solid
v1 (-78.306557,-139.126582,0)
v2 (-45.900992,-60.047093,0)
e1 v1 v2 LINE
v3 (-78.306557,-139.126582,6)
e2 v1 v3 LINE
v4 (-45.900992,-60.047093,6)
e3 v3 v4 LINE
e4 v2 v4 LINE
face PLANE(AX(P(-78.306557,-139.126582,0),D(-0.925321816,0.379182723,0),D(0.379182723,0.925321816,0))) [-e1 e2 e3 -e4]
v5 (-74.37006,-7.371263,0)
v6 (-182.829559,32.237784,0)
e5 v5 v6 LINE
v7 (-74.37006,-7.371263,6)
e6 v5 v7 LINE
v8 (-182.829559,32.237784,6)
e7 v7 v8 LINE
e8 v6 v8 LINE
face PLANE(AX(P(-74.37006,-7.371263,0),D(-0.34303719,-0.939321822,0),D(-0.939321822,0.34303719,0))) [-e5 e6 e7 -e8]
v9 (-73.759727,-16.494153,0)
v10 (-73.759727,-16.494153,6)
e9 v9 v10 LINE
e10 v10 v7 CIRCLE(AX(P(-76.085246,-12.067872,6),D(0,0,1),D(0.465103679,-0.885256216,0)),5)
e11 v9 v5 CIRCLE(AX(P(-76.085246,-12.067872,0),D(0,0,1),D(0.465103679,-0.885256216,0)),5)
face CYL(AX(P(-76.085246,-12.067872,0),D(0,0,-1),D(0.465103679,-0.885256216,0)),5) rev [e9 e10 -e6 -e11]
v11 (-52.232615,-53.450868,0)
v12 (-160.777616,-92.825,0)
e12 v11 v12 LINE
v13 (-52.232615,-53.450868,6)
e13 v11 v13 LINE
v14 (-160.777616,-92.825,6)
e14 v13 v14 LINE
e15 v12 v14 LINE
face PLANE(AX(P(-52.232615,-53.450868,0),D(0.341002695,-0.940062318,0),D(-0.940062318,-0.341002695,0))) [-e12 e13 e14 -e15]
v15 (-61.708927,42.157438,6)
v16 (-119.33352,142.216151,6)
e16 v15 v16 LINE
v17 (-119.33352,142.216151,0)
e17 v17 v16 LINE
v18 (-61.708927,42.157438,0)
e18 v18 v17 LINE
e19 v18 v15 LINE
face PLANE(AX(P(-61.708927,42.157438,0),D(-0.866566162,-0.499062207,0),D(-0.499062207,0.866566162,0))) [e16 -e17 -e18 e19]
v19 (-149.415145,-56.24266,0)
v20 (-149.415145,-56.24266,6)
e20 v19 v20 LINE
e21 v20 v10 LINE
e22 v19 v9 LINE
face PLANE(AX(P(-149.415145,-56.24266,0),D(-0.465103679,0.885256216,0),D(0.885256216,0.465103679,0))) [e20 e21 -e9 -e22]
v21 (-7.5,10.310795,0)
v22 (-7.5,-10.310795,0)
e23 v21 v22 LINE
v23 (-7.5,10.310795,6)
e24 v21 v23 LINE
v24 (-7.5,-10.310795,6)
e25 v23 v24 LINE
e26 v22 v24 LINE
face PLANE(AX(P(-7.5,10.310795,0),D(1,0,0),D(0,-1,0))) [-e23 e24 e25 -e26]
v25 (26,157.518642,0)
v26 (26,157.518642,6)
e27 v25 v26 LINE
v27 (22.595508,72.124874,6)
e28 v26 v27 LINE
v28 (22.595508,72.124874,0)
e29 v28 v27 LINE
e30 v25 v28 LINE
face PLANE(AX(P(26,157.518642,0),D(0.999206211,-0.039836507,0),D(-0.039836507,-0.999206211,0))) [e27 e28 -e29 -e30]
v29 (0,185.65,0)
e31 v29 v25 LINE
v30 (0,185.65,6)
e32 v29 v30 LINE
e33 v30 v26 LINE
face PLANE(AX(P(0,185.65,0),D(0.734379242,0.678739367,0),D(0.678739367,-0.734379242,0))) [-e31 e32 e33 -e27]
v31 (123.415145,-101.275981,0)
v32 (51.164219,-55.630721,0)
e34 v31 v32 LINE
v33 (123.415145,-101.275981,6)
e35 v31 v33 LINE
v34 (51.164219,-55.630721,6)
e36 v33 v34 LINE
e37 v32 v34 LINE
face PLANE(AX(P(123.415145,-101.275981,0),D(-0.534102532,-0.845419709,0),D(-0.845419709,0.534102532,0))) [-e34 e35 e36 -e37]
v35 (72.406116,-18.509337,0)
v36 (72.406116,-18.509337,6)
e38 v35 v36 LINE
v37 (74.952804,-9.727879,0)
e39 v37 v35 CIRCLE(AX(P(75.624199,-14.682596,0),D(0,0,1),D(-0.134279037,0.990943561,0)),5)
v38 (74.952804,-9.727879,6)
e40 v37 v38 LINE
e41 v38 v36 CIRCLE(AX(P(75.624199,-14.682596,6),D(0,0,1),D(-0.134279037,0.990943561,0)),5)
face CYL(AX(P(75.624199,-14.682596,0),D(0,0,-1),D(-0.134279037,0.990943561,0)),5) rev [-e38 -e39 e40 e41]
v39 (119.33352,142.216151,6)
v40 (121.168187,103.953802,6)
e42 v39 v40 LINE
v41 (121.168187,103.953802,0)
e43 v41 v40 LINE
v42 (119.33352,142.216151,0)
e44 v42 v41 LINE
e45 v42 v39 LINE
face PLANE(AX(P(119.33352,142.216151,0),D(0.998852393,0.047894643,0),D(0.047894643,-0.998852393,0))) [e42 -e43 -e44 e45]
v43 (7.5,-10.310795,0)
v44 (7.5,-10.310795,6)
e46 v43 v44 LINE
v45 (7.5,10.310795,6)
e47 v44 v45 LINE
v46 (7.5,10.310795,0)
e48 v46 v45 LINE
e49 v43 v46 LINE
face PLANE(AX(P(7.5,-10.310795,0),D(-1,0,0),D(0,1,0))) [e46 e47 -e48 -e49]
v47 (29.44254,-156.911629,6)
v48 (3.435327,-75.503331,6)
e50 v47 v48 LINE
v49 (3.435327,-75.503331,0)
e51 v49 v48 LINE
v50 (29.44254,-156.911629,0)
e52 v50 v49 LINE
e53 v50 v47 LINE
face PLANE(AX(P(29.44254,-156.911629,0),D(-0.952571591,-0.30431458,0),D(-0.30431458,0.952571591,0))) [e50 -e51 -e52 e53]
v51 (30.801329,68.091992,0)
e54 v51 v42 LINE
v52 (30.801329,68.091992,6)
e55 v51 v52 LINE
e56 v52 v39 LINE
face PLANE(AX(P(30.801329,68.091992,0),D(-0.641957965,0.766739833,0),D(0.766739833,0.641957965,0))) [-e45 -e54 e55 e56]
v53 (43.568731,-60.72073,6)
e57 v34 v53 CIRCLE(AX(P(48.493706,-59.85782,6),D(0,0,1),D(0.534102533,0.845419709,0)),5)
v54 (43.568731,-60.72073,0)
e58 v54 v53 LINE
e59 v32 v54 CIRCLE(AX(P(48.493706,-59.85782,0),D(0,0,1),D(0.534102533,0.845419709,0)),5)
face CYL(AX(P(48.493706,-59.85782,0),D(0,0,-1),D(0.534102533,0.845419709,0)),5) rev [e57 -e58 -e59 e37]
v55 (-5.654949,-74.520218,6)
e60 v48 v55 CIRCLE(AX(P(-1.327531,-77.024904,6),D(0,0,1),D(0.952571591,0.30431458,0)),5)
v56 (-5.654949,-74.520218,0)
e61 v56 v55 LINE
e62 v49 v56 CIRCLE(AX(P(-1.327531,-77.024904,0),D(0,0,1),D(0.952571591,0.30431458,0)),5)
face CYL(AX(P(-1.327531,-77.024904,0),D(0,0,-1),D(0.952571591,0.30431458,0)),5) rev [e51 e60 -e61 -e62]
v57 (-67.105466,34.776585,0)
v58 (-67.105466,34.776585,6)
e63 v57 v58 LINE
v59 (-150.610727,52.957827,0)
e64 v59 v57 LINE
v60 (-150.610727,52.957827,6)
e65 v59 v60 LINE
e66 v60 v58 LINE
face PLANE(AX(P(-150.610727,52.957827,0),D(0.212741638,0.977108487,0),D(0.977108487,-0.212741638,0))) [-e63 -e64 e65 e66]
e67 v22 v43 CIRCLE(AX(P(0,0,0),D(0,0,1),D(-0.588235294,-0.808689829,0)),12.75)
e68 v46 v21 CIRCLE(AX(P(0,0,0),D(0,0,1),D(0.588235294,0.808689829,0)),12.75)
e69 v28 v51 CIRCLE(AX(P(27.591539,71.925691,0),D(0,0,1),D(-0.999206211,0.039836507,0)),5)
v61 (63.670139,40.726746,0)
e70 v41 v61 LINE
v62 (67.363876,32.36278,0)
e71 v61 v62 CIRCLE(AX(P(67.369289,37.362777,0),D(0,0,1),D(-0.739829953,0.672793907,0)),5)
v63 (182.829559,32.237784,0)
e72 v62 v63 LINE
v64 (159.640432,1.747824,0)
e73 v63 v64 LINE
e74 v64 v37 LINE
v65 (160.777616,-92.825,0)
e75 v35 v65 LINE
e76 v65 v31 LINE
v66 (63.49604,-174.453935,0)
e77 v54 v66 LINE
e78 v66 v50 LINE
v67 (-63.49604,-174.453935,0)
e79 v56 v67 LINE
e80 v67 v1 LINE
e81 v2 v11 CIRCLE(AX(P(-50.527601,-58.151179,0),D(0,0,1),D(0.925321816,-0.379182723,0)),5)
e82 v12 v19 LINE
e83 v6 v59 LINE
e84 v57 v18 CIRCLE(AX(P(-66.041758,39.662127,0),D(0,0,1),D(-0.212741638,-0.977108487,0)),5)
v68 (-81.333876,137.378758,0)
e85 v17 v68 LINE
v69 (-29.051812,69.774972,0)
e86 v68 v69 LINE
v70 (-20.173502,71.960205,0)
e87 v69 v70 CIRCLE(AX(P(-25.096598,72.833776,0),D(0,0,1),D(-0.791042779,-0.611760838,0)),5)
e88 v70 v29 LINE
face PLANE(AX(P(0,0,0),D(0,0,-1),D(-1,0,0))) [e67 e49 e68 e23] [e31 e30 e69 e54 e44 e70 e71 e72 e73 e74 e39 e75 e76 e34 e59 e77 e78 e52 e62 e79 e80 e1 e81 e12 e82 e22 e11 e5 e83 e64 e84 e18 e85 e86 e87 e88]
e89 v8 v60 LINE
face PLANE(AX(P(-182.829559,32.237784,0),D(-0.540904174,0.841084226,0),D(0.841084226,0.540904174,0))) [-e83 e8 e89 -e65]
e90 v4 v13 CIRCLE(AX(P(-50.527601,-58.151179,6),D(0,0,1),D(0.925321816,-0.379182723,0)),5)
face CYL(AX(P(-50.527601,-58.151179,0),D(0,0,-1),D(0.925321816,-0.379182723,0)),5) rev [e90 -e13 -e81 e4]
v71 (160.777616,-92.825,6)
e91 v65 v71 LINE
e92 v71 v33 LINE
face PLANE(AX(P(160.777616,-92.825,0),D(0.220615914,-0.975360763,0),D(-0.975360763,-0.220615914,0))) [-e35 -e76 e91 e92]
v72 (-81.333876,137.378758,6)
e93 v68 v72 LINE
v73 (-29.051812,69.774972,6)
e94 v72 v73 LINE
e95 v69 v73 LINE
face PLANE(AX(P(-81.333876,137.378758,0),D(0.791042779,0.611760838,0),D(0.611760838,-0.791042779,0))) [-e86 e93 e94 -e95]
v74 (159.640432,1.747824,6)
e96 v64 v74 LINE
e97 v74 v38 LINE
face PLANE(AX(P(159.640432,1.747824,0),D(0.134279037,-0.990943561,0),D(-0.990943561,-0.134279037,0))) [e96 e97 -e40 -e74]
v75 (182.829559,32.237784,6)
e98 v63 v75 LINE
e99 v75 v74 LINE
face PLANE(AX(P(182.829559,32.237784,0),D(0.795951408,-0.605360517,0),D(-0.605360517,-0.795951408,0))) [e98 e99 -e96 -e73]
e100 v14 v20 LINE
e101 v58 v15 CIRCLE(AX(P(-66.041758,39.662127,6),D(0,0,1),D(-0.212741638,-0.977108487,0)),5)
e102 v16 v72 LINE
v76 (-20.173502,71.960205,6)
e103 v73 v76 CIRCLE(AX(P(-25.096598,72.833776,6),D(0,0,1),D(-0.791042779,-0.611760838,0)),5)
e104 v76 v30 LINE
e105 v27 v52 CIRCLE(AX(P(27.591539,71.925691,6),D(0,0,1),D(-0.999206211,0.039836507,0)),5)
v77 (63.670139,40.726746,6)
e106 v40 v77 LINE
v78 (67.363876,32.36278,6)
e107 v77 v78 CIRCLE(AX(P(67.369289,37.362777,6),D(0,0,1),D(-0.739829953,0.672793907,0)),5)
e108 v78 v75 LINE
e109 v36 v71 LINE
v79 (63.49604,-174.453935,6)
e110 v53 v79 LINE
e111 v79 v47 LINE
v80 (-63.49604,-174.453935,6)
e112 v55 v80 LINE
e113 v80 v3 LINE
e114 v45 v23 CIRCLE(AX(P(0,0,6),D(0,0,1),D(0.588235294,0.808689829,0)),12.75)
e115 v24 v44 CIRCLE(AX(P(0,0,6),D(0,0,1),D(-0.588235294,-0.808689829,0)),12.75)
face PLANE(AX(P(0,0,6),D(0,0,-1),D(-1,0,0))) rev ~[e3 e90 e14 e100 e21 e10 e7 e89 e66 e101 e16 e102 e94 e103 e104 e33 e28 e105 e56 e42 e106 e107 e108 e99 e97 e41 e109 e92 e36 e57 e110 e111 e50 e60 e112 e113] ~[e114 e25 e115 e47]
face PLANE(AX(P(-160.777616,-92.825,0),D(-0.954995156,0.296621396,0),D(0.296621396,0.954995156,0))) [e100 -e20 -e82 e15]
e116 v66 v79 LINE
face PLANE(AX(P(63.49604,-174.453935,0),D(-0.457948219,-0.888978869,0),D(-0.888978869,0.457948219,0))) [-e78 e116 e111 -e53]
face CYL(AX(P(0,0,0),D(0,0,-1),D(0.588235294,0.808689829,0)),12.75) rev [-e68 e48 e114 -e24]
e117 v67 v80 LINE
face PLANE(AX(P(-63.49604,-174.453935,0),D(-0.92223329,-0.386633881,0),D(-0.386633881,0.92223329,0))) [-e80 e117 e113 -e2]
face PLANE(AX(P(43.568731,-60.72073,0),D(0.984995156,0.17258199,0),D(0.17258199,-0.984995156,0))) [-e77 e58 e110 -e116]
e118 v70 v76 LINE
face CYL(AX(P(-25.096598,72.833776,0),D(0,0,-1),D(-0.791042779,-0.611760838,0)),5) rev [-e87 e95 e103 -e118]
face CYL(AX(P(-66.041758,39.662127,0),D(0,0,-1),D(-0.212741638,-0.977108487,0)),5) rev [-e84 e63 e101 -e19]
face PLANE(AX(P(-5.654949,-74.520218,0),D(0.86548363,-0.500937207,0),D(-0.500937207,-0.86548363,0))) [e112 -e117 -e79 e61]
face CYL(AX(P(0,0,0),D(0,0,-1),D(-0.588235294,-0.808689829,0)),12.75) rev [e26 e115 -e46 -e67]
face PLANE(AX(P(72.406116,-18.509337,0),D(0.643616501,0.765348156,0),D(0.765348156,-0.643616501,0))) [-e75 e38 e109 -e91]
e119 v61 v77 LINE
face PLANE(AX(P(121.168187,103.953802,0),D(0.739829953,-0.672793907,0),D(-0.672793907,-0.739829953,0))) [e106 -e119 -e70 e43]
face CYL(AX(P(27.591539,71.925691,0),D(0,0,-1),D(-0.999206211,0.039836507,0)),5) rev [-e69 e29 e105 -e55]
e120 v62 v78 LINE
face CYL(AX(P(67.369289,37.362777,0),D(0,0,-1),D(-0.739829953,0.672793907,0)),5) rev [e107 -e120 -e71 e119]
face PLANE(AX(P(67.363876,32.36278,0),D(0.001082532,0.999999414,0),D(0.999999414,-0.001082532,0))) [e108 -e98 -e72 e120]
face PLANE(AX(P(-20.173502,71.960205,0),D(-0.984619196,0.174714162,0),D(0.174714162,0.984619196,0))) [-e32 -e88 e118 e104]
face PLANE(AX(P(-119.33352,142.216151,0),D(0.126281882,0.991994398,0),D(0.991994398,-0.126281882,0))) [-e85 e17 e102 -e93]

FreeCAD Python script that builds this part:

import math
import FreeCAD as App
import Part
import Sketcher

V = App.Vector

doc = App.newDocument("Part")
body = doc.addObject("PartDesign::Body", "Body")

sketch1 = body.newObject("Sketcher::SketchObject", "Sketch")
sketch1.AttachmentSupport = (doc.getObject("XY_Plane"), [""])
sketch1.MapMode = "FlatFace"
sketch1.addGeometry([
    Part.LineSegment(V(0, 185.65, 0), V(-20.173502, 71.960205, 0)),
    Part.ArcOfCircle(Part.Circle(V(-25.096598, 72.833776, 0), V(0, 0, 1), 5), math.radians(-142.283068), math.radians(-10.062025)),
    Part.LineSegment(V(-29.051812, 69.774972, 0), V(-81.333876, 137.378758, 0)),
    Part.LineSegment(V(-81.333876, 137.378758, 0), V(-119.33352, 142.216151, 0)),
    Part.LineSegment(V(-119.33352, 142.216151, 0), V(-61.708927, 42.157438, 0)),
    Part.ArcOfCircle(Part.Circle(V(-66.041758, 39.662127, 0), V(0, 0, 1), 5), math.radians(-102.283068), math.radians(29.937975)),
    Part.LineSegment(V(-67.105466, 34.776585, 0), V(-150.610727, 52.957827, 0)),
    Part.LineSegment(V(-150.610727, 52.957827, 0), V(-182.829559, 32.237784, 0)),
    Part.LineSegment(V(-182.829559, 32.237784, 0), V(-74.37006, -7.371263, 0)),
    Part.ArcOfCircle(Part.Circle(V(-76.085246, -12.067872, 0), V(0, 0, 1), 5), math.radians(-62.283068), math.radians(69.937975)),
    Part.LineSegment(V(-73.759727, -16.494153, 0), V(-149.415145, -56.24266, 0)),
    Part.LineSegment(V(-149.415145, -56.24266, 0), V(-160.777616, -92.825, 0)),
    Part.LineSegment(V(-160.777616, -92.825, 0), V(-52.232615, -53.450868, 0)),
    Part.ArcOfCircle(Part.Circle(V(-50.527601, -58.151179, 0), V(0, 0, 1), 5), math.radians(-22.283068), math.radians(109.937975)),
    Part.LineSegment(V(-45.900992, -60.047093, 0), V(-78.306557, -139.126582, 0)),
    Part.LineSegment(V(-78.306557, -139.126582, 0), V(-63.49604, -174.453935, 0)),
    Part.LineSegment(V(-63.49604, -174.453935, 0), V(-5.654949, -74.520218, 0)),
    Part.ArcOfCircle(Part.Circle(V(-1.327531, -77.024904, 0), V(0, 0, 1), 5), math.radians(17.716932), math.radians(149.937975)),
    Part.LineSegment(V(3.435327, -75.503331, 0), V(29.44254, -156.911629, 0)),
    Part.LineSegment(V(29.44254, -156.911629, 0), V(63.49604, -174.453935, 0)),
    Part.LineSegment(V(63.49604, -174.453935, 0), V(43.568731, -60.72073, 0)),
    Part.ArcOfCircle(Part.Circle(V(48.493706, -59.85782, 0), V(0, 0, 1), 5), math.radians(57.716932), math.radians(189.937975)),
    Part.LineSegment(V(51.164219, -55.630721, 0), V(123.415145, -101.275981, 0)),
    Part.LineSegment(V(123.415145, -101.275981, 0), V(160.777616, -92.825, 0)),
    Part.LineSegment(V(160.777616, -92.825, 0), V(72.406116, -18.509337, 0)),
    Part.ArcOfCircle(Part.Circle(V(75.624199, -14.682596, 0), V(0, 0, 1), 5), math.radians(97.716932), math.radians(229.937975)),
    Part.LineSegment(V(74.952804, -9.727879, 0), V(159.640432, 1.747824, 0)),
    Part.LineSegment(V(159.640432, 1.747824, 0), V(182.829559, 32.237784, 0)),
    Part.LineSegment(V(182.829559, 32.237784, 0), V(67.363876, 32.36278, 0)),
    Part.ArcOfCircle(Part.Circle(V(67.369289, 37.362777, 0), V(0, 0, 1), 5), math.radians(137.716932), math.radians(269.937975)),
    Part.LineSegment(V(63.670139, 40.726746, 0), V(121.168187, 103.953802, 0)),
    Part.LineSegment(V(121.168187, 103.953802, 0), V(119.33352, 142.216151, 0)),
    Part.LineSegment(V(119.33352, 142.216151, 0), V(30.801329, 68.091992, 0)),
    Part.ArcOfCircle(Part.Circle(V(27.591539, 71.925691, 0), V(0, 0, 1), 5), math.radians(177.716932), math.radians(309.937975)),
    Part.LineSegment(V(22.595508, 72.124874, 0), V(26, 157.518642, 0)),
    Part.LineSegment(V(26, 157.518642, 0), V(0, 185.65, 0)),
    Part.ArcOfCircle(Part.Circle(V(0, 0, 0), V(0, 0, 1), 12.75), math.radians(53.968121), math.radians(126.031879)),
    Part.LineSegment(V(7.5, 10.310795, 0), V(7.5, -10.310795, 0)),
    Part.ArcOfCircle(Part.Circle(V(0, 0, 0), V(0, 0, 1), 12.75), math.radians(-126.031879), math.radians(-53.968121)),
    Part.LineSegment(V(-7.5, -10.310795, 0), V(-7.5, 10.310795, 0)),
], False)
sketch1.addConstraint([
    Sketcher.Constraint("Coincident", 0, 2, 1, 2),
    Sketcher.Constraint("Coincident", 1, 1, 2, 1),
    Sketcher.Constraint("Coincident", 2, 2, 3, 1),
    Sketcher.Constraint("Coincident", 3, 2, 4, 1),
    Sketcher.Constraint("Coincident", 4, 2, 5, 2),
    Sketcher.Constraint("Coincident", 5, 1, 6, 1),
    Sketcher.Constraint("Coincident", 6, 2, 7, 1),
    Sketcher.Constraint("Coincident", 7, 2, 8, 1),
    Sketcher.Constraint("Coincident", 8, 2, 9, 2),
    Sketcher.Constraint("Coincident", 9, 1, 10, 1),
    Sketcher.Constraint("Coincident", 10, 2, 11, 1),
    Sketcher.Constraint("Coincident", 11, 2, 12, 1),
    Sketcher.Constraint("Coincident", 12, 2, 13, 2),
    Sketcher.Constraint("Coincident", 13, 1, 14, 1),
    Sketcher.Constraint("Coincident", 14, 2, 15, 1),
    Sketcher.Constraint("Coincident", 15, 2, 16, 1),
    Sketcher.Constraint("Coincident", 16, 2, 17, 2),
    Sketcher.Constraint("Coincident", 17, 1, 18, 1),
    Sketcher.Constraint("Coincident", 18, 2, 19, 1),
    Sketcher.Constraint("Coincident", 19, 2, 20, 1),
    Sketcher.Constraint("Coincident", 20, 2, 21, 2),
    Sketcher.Constraint("Coincident", 21, 1, 22, 1),
    Sketcher.Constraint("Coincident", 22, 2, 23, 1),
    Sketcher.Constraint("Coincident", 23, 2, 24, 1),
    Sketcher.Constraint("Coincident", 24, 2, 25, 2),
    Sketcher.Constraint("Coincident", 25, 1, 26, 1),
    Sketcher.Constraint("Coincident", 26, 2, 27, 1),
    Sketcher.Constraint("Coincident", 27, 2, 28, 1),
    Sketcher.Constraint("Coincident", 28, 2, 29, 2),
    Sketcher.Constraint("Coincident", 29, 1, 30, 1),
    Sketcher.Constraint("Coincident", 30, 2, 31, 1),
    Sketcher.Constraint("Coincident", 31, 2, 32, 1),
    Sketcher.Constraint("Coincident", 32, 2, 33, 2),
    Sketcher.Constraint("Coincident", 33, 1, 34, 1),
    Sketcher.Constraint("Coincident", 34, 2, 35, 1),
    Sketcher.Constraint("Coincident", 35, 2, 0, 1),
    Sketcher.Constraint("Coincident", 36, 1, 37, 1),
    Sketcher.Constraint("Coincident", 37, 2, 38, 2),
    Sketcher.Constraint("Coincident", 38, 1, 39, 1),
    Sketcher.Constraint("Coincident", 39, 2, 36, 2),
    Sketcher.Constraint("Vertical", 37),
    Sketcher.Constraint("Vertical", 39),
    Sketcher.Constraint("Coincident", 36, 3, -1, 1),
    Sketcher.Constraint("Coincident", 38, 3, -1, 1),
    Sketcher.Constraint("PointOnObject", 35, 2, -2),
    Sketcher.Constraint("Radius", 1, 5.0),
    Sketcher.Constraint("Radius", 5, 5.0),
    Sketcher.Constraint("Radius", 9, 5.0),
    Sketcher.Constraint("Radius", 13, 5.0),
    Sketcher.Constraint("Radius", 17, 5.0),
    Sketcher.Constraint("Radius", 21, 5.0),
    Sketcher.Constraint("Radius", 25, 5.0),
    Sketcher.Constraint("Radius", 29, 5.0),
    Sketcher.Constraint("Radius", 33, 5.0),
    Sketcher.Constraint("Radius", 36, 12.75),
    Sketcher.Constraint("Radius", 38, 12.75),
    Sketcher.Constraint("DistanceX", -1, 1, 34, 2, 26.0),
    Sketcher.Constraint("DistanceX", 38, 1, 37, 2, 15.0),
    Sketcher.Constraint("DistanceX", -1, 1, 36, 1, 7.5),
    Sketcher.Constraint("DistanceY", -1, 1, 35, 2, 185.65),
    Sketcher.Constraint("DistanceY", 9, 3, 5, 3, 51.729999),
    Sketcher.Constraint("DistanceY", 11, 2, -1, 1, 92.825),
    Sketcher.Constraint("DistanceY", 23, 2, -1, 1, 92.825),
    Sketcher.Constraint("DistanceY", 29, 3, 1, 3, 35.470999),
    Sketcher.Constraint("DistanceX", 13, 3, -1, 1, 50.527601),
    Sketcher.Constraint("DistanceX", -1, 1, 25, 3, 75.624199),
    Sketcher.Constraint("DistanceX", 0, 2, -1, 1, 20.173502),
    Sketcher.Constraint("DistanceY", 5, 3, 6, 2, 13.2957),
    Sketcher.Constraint("DistanceX", 6, 2, 4, 2, 88.9018),
    Sketcher.Constraint("DistanceY", 7, 2, 5, 1, 2.5388),
    Sketcher.Constraint("DistanceX", 7, 2, 5, 3, 116.787801),
    Sketcher.Constraint("DistanceX", 8, 2, 5, 3, 8.328302),
    Sketcher.Constraint("DistanceY", 8, 2, 4, 2, 49.528701),
    Sketcher.Constraint("DistanceX", 10, 2, 9, 3, 73.3299),
    Sketcher.Constraint("DistanceY", 16, 2, 21, 3, 14.662398),
    Sketcher.Constraint("DistanceY", 18, 2, 17, 1, 81.408298),
    Sketcher.Constraint("DistanceX", 18, 2, 19, 2, 34.053499),
    Sketcher.Constraint("DistanceY", 17, 1, 20, 2, 14.782601),
    Sketcher.Constraint("DistanceY", 21, 3, 21, 1, 4.227099),
    Sketcher.Constraint("DistanceX", 33, 3, 29, 1, 36.0786),
    Sketcher.Constraint("DistanceX", 29, 3, 30, 2, 53.798898),
    Sketcher.Constraint("DistanceY", 32, 2, 33, 3, 3.833699),
    Sketcher.Constraint("DistanceY", 33, 1, 1, 3, 0.708902),
    Sketcher.Constraint("Distance", 0, 115.465751),
    Sketcher.Constraint("Distance", 3, 38.306309),
    Sketcher.Constraint("Distance", 4, 115.465751),
    Sketcher.Constraint("Distance", 7, 38.306309),
    Sketcher.Constraint("Distance", 8, 115.465751),
    Sketcher.Constraint("Distance", 11, 38.306309),
    Sketcher.Constraint("Distance", 12, 115.465751),
    Sketcher.Constraint("Distance", 15, 38.306309),
    Sketcher.Constraint("Distance", 16, 115.465751),
    Sketcher.Constraint("Distance", 19, 38.306309),
    Sketcher.Constraint("Distance", 20, 115.465751),
    Sketcher.Constraint("Distance", 23, 38.306309),
    Sketcher.Constraint("Distance", 24, 115.465751),
    Sketcher.Constraint("Distance", 27, 38.306309),
    Sketcher.Constraint("Distance", 28, 115.465751),
    Sketcher.Constraint("Distance", 31, 38.306309),
    Sketcher.Constraint("Distance", 32, 115.465751),
    Sketcher.Constraint("Distance", 35, 38.306309),
    Sketcher.Constraint("DistanceY", 9, 3, -1, 1, 12.067872),
    Sketcher.Constraint("DistanceY", 13, 3, -1, 1, 58.151179),
    Sketcher.Constraint("DistanceX", 17, 3, -1, 1, 1.327531),
    Sketcher.Constraint("DistanceY", 21, 3, -1, 1, 59.85782),
    Sketcher.Constraint("DistanceX", -1, 1, 29, 3, 67.369289),
    Sketcher.Constraint("DistanceX", -1, 1, 33, 3, 27.591539),
    Sketcher.Constraint("DistanceY", -1, 1, 33, 3, 71.925691),
    Sketcher.Constraint("DistanceX", 1, 1, -1, 1, 29.051812),
    Sketcher.Constraint("DistanceY", -1, 1, 1, 1, 69.774972),
    Sketcher.Constraint("DistanceY", -1, 1, 2, 2, 137.378758),
    Sketcher.Constraint("DistanceX", 3, 2, -1, 1, 119.33352),
    Sketcher.Constraint("DistanceY", -1, 1, 3, 2, 142.216151),
    Sketcher.Constraint("DistanceY", 10, 2, -1, 1, 56.24266),
    Sketcher.Constraint("DistanceX", 13, 1, -1, 1, 45.900992),
    Sketcher.Constraint("DistanceY", 14, 2, -1, 1, 139.126582),
    Sketcher.Constraint("DistanceX", 15, 2, -1, 1, 63.49604),
    Sketcher.Constraint("DistanceX", 16, 2, -1, 1, 5.654949),
    Sketcher.Constraint("DistanceY", 17, 1, -1, 1, 75.503331),
    Sketcher.Constraint("DistanceX", -1, 1, 18, 2, 29.44254),
    Sketcher.Constraint("DistanceY", 22, 2, -1, 1, 101.275981),
    Sketcher.Constraint("DistanceY", 25, 1, -1, 1, 9.727879),
    Sketcher.Constraint("DistanceX", -1, 1, 27, 2, 182.829559),
    Sketcher.Constraint("DistanceX", -1, 1, 31, 2, 119.33352),
    Sketcher.Constraint("DistanceX", 9, 3, 9, 1, 2.325518),
    Sketcher.Constraint("DistanceX", 21, 3, 22, 2, 74.921439),
    Sketcher.Constraint("DistanceY", 24, 2, 25, 3, 3.826741),
    Sketcher.Constraint("DistanceX", 25, 1, 26, 2, 84.687628),
    Sketcher.Constraint("DistanceY", 25, 3, 26, 2, 16.43042),
])
pad1 = body.newObject("PartDesign::Pad", "Pad")
pad1.Profile = sketch1
pad1.Length = 6

doc.recompute()
